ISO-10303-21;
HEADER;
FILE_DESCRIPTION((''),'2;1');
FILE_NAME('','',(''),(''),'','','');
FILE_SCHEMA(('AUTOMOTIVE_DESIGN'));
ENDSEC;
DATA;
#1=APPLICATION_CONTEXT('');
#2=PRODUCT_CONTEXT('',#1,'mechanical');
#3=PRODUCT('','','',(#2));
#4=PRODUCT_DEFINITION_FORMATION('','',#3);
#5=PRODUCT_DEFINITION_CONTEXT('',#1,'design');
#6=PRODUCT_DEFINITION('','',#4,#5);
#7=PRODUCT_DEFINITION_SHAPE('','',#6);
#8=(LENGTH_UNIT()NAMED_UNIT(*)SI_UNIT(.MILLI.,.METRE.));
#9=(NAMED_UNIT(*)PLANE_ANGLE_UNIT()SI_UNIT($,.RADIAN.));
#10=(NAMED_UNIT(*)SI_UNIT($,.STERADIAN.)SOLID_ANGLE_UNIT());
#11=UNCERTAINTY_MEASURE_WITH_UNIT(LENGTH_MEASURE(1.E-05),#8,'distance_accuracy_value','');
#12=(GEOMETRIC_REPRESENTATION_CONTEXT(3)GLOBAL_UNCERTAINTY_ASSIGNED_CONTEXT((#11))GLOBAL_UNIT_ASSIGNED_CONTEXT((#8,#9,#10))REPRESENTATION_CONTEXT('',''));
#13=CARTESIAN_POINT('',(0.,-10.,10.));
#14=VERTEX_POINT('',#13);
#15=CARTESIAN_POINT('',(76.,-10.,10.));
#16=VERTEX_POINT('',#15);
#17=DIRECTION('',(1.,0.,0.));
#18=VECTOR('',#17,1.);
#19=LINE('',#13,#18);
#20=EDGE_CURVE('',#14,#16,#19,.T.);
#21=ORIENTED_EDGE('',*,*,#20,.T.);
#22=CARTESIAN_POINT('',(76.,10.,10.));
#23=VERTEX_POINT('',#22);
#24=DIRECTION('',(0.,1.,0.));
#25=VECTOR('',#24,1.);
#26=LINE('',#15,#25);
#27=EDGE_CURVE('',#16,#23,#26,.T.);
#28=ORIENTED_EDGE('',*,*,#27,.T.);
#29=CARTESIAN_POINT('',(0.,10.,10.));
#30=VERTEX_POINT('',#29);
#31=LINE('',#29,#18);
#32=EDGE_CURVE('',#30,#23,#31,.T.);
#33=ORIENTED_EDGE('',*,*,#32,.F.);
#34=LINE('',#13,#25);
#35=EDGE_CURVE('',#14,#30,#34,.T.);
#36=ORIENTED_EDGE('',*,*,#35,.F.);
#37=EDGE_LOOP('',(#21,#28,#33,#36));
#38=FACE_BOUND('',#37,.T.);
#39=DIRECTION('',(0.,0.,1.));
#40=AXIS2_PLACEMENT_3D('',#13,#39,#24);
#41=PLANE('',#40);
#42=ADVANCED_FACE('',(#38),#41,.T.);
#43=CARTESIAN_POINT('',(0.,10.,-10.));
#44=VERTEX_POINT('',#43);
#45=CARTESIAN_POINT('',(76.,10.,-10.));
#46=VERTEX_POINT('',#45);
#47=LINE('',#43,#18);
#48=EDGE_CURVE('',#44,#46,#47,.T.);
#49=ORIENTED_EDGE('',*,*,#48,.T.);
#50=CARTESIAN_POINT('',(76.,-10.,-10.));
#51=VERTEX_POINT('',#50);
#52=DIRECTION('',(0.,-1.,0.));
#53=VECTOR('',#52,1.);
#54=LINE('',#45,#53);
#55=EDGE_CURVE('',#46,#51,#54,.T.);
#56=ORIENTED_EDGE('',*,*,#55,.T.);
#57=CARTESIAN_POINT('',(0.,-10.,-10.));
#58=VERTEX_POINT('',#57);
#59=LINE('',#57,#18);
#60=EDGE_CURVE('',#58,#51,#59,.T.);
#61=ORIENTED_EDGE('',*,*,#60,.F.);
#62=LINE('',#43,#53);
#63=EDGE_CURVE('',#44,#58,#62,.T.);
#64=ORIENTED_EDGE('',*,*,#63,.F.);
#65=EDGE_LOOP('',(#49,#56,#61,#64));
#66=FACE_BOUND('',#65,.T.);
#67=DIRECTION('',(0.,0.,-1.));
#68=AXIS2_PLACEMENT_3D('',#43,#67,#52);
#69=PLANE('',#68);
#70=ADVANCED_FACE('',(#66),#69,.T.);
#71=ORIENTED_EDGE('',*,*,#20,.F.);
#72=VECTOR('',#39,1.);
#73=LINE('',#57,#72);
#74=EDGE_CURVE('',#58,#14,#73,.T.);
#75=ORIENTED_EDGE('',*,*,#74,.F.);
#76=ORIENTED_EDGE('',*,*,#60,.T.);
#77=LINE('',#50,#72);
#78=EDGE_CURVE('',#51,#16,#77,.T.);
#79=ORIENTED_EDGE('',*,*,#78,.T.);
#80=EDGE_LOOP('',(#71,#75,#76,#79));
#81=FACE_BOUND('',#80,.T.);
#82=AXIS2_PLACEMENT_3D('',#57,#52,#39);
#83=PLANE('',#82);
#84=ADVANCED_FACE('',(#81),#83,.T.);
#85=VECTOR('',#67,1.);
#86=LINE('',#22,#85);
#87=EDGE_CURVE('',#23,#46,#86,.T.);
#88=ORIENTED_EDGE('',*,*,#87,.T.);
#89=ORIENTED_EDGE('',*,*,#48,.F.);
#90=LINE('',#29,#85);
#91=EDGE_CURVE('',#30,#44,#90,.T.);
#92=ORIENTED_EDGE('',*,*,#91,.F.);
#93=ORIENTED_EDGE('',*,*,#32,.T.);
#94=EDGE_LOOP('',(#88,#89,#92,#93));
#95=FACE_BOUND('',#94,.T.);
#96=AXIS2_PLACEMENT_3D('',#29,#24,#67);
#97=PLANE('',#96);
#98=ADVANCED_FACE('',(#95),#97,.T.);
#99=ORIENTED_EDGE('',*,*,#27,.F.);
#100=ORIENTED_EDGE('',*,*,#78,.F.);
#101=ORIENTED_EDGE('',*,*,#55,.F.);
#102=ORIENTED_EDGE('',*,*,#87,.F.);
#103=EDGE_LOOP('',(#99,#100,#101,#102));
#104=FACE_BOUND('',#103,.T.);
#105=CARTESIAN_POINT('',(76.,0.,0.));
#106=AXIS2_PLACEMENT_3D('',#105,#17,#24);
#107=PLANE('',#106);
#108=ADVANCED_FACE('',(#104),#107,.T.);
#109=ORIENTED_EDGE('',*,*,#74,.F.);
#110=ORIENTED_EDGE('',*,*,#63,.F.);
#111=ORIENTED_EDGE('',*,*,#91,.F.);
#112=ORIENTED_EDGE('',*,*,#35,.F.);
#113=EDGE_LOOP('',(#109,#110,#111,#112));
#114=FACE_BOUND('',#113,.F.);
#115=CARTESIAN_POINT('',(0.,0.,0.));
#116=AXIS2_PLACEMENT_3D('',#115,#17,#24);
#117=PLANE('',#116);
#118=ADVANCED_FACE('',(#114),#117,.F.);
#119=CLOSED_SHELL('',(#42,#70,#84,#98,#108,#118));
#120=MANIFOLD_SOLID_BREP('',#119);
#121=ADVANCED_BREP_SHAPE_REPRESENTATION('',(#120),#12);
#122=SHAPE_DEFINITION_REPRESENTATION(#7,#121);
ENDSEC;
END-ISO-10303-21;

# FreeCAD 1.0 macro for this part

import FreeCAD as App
import Part
import Sketcher
from FreeCAD import Vector
Q = App.Units.Quantity


def add_polygon(sketch, points):
    """Adds a closed chain of lines whose ends are joined by coincident constraints."""
    first, n = sketch.GeometryCount, len(points)
    for a, b in zip(points, points[1:] + points[:1]):
        sketch.addGeometry(Part.LineSegment(App.Vector(*a, 0), App.Vector(*b, 0)), False)
    for i in range(n):
        sketch.addConstraint(Sketcher.Constraint("Coincident", first + i, 2, first + (i + 1) % n, 1))

doc = App.newDocument("Part")
body = doc.addObject("PartDesign::Body", "Body")

# Sketch on YZ plane
sketch1 = doc.addObject("Sketcher::SketchObject", "Sketch")
body.addObject(sketch1)
sketch1.AttachmentSupport = (doc.YZ_Plane, [""])
sketch1.MapMode = "FlatFace"
add_polygon(sketch1, [(10, 10), (-10, 10), (-10, -10), (10, -10)])  # lines 0-3
sketch1.addConstraint(Sketcher.Constraint("Horizontal", 0))
sketch1.addConstraint(Sketcher.Constraint("Vertical", 1))
sketch1.addConstraint(Sketcher.Constraint("Horizontal", 2))
sketch1.addConstraint(Sketcher.Constraint("Vertical", 3))
sketch1.addConstraint(Sketcher.Constraint("Symmetric", 0, 2, 2, 2, -1, 1))
sketch1.addConstraint(Sketcher.Constraint("Equal", 2, 1))
sketch1.addConstraint(Sketcher.Constraint("DistanceX", 0, 2, 0, 1, Q("20 mm")))
pad1 = doc.addObject("PartDesign::Pad", "Pad")
body.addObject(pad1)
pad1.Profile = sketch1
pad1.Length = 76

doc.recompute()
